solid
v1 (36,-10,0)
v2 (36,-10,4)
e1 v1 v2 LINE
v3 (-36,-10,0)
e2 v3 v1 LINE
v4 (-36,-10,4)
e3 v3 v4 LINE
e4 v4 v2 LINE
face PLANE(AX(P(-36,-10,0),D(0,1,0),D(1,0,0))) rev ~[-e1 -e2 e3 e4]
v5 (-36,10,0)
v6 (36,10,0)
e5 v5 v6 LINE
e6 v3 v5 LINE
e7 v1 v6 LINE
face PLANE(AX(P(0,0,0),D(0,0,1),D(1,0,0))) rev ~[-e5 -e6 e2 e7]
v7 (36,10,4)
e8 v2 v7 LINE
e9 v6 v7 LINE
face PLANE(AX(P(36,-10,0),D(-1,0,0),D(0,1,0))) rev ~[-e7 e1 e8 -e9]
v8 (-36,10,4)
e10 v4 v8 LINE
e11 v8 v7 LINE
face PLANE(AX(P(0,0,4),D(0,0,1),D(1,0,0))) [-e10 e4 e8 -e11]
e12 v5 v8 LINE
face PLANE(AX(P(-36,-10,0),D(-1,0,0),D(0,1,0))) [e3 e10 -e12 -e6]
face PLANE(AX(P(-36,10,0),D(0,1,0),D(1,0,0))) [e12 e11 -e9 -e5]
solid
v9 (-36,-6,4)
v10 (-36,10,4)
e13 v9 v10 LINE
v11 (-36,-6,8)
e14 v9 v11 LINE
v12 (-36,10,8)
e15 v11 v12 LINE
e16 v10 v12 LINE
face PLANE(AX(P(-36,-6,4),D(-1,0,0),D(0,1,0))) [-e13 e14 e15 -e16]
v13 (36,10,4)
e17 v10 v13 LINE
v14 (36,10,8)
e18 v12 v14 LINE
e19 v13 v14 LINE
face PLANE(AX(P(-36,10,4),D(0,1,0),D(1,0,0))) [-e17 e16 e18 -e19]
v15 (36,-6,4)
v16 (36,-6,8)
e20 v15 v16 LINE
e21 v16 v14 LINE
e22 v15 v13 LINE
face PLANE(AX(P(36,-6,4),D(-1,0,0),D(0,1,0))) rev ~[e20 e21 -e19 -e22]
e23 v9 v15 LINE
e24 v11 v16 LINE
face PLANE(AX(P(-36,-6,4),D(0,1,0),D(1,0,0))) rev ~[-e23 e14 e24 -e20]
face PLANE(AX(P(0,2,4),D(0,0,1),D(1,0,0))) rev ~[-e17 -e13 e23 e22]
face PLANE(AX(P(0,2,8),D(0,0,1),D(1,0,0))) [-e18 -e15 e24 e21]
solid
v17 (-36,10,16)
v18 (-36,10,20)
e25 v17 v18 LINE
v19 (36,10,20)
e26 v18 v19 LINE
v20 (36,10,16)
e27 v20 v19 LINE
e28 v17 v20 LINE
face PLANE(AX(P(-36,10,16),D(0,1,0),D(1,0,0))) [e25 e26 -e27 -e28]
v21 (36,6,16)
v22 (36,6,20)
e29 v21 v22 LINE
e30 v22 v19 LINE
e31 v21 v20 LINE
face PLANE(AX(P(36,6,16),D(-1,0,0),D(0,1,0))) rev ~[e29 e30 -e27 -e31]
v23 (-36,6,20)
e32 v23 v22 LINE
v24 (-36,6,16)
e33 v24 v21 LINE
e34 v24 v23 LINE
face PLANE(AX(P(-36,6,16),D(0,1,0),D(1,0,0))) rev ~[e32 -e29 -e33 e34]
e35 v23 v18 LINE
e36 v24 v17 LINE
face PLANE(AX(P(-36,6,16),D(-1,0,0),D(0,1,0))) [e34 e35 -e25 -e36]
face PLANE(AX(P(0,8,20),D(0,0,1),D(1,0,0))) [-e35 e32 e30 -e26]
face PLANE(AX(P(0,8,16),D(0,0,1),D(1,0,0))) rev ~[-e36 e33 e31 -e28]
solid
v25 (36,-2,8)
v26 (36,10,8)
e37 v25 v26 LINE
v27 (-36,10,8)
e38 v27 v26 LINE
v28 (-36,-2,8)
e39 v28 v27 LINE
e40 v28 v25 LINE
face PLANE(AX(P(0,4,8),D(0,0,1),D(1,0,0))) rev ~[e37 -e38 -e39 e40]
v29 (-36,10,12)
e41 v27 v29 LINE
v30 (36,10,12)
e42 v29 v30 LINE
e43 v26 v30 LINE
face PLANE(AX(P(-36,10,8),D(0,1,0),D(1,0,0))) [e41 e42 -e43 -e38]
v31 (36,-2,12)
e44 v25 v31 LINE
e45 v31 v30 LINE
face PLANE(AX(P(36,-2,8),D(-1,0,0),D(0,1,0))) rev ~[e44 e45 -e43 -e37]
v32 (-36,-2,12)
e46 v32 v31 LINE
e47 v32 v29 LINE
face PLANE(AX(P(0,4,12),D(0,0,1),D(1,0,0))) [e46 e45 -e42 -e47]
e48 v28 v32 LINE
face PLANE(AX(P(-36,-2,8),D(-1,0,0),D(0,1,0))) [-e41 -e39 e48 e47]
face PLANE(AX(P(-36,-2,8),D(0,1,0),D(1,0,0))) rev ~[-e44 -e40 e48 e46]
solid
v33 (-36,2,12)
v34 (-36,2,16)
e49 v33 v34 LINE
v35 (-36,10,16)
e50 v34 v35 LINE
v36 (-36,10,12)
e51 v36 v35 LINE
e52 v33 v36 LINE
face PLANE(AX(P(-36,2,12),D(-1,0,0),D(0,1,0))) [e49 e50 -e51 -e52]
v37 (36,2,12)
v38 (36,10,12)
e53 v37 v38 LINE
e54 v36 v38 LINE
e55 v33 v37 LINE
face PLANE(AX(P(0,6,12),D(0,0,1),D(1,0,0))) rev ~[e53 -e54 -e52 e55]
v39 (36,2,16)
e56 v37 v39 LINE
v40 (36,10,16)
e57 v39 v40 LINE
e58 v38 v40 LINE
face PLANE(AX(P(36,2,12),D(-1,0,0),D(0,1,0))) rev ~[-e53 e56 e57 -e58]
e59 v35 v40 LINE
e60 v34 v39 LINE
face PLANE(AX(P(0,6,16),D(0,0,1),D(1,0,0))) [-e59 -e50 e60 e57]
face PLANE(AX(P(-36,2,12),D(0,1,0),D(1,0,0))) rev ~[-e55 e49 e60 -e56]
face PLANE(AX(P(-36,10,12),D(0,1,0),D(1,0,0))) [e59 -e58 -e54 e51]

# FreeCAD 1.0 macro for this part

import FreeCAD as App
import Part
import Sketcher

V = App.Vector
Q = App.Units.Quantity


def add_polygon(sketch, points):
    """Adds a closed chain of lines whose ends are joined by coincident constraints."""
    first, n = sketch.GeometryCount, len(points)
    for a, b in zip(points, points[1:] + points[:1]):
        sketch.addGeometry(Part.LineSegment(App.Vector(*a, 0), App.Vector(*b, 0)), False)
    for i in range(n):
        sketch.addConstraint(Sketcher.Constraint("Coincident", first + i, 2, first + (i + 1) % n, 1))

doc = App.newDocument("Part")
body = doc.addObject("PartDesign::Body", "Body")

# Sketch on XY plane
sketch1 = body.newObject("Sketcher::SketchObject", "Sketch")
sketch1.AttachmentSupport = (doc.getObject("XY_Plane"), [""])
sketch1.MapMode = "FlatFace"
add_polygon(sketch1, [(-36, 10), (-36, -10), (36, -10), (36, 10)])  # lines 0-3
sketch1.addConstraint([
    Sketcher.Constraint("Vertical", 0),
    Sketcher.Constraint("Horizontal", 1),
    Sketcher.Constraint("Vertical", 2),
    Sketcher.Constraint("Horizontal", 3),
    Sketcher.Constraint("Symmetric", 0, 2, 2, 2, -1, 1),
    Sketcher.Constraint("DistanceX", 1, 1, 1, 2, Q("72 mm")),
    Sketcher.Constraint("DistanceY", 0, 2, 0, 1, Q("20 mm")),
])
pad1 = body.newObject("PartDesign::Pad", "Pad")
pad1.Profile = sketch1
pad1.Length = 4
body2 = doc.addObject("PartDesign::Body", "Body001")

# Sketch on XY plane
sketch2 = body2.newObject("Sketcher::SketchObject", "Sketch001")
sketch2.AttachmentSupport = (doc.getObject("XY_Plane001"), [""])
sketch2.MapMode = "FlatFace"
sketch2.AttachmentOffset = App.Placement(V(0, 0, 4), App.Rotation())
add_polygon(sketch2, [(-36, 10), (-36, -6), (36, -6), (36, 10)])  # lines 0-3
sketch2.addConstraint([
    Sketcher.Constraint("Vertical", 0),
    Sketcher.Constraint("Horizontal", 1),
    Sketcher.Constraint("Vertical", 2),
    Sketcher.Constraint("Horizontal", 3),
    Sketcher.Constraint("DistanceX", 1, 1, 1, 2, Q("72 mm")),
    Sketcher.Constraint("DistanceY", 0, 2, 0, 1, Q("16 mm")),
    Sketcher.Constraint("DistanceX", 0, 2, -1, 1, Q("36 mm")),
    Sketcher.Constraint("DistanceY", 0, 2, -1, 1, Q("6 mm")),
])
pad2 = body2.newObject("PartDesign::Pad", "Pad001")
pad2.Profile = sketch2
pad2.Length = 4
body3 = doc.addObject("PartDesign::Body", "Body002")

# Sketch on XY plane
sketch3 = body3.newObject("Sketcher::SketchObject", "Sketch002")
sketch3.AttachmentSupport = (doc.getObject("XY_Plane002"), [""])
sketch3.MapMode = "FlatFace"
sketch3.AttachmentOffset = App.Placement(V(0, 0, 8), App.Rotation())
add_polygon(sketch3, [(-36, 10), (-36, -2), (36, -2), (36, 10)])  # lines 0-3
sketch3.addConstraint([
    Sketcher.Constraint("Vertical", 0),
    Sketcher.Constraint("Horizontal", 1),
    Sketcher.Constraint("Vertical", 2),
    Sketcher.Constraint("Horizontal", 3),
    Sketcher.Constraint("DistanceX", 1, 1, 1, 2, Q("72 mm")),
    Sketcher.Constraint("DistanceY", 0, 2, 0, 1, Q("12 mm")),
    Sketcher.Constraint("DistanceX", 0, 2, -1, 1, Q("36 mm")),
    Sketcher.Constraint("DistanceY", 0, 2, -1, 1, Q("2 mm")),
])
pad3 = body3.newObject("PartDesign::Pad", "Pad002")
pad3.Profile = sketch3
pad3.Length = 4
body4 = doc.addObject("PartDesign::Body", "Body003")

# Sketch on XY plane
sketch4 = body4.newObject("Sketcher::SketchObject", "Sketch003")
sketch4.AttachmentSupport = (doc.getObject("XY_Plane003"), [""])
sketch4.MapMode = "FlatFace"
sketch4.AttachmentOffset = App.Placement(V(0, 0, 12), App.Rotation())
add_polygon(sketch4, [(-36, 10), (-36, 2), (36, 2), (36, 10)])  # lines 0-3
sketch4.addConstraint([
    Sketcher.Constraint("Vertical", 0),
    Sketcher.Constraint("Horizontal", 1),
    Sketcher.Constraint("Vertical", 2),
    Sketcher.Constraint("Horizontal", 3),
    Sketcher.Constraint("DistanceX", 1, 1, 1, 2, Q("72 mm")),
    Sketcher.Constraint("DistanceY", 0, 2, 0, 1, Q("8 mm")),
    Sketcher.Constraint("DistanceX", 0, 2, -1, 1, Q("36 mm")),
    Sketcher.Constraint("DistanceY", -1, 1, 0, 2, Q("2 mm")),
])
pad4 = body4.newObject("PartDesign::Pad", "Pad003")
pad4.Profile = sketch4
pad4.Length = 4
body5 = doc.addObject("PartDesign::Body", "Body004")

# Sketch on XY plane
sketch5 = body5.newObject("Sketcher::SketchObject", "Sketch004")
sketch5.AttachmentSupport = (doc.getObject("XY_Plane004"), [""])
sketch5.MapMode = "FlatFace"
sketch5.AttachmentOffset = App.Placement(V(0, 0, 16), App.Rotation())
add_polygon(sketch5, [(-36, 10), (-36, 6), (36, 6), (36, 10)])  # lines 0-3
sketch5.addConstraint([
    Sketcher.Constraint("Vertical", 0),
    Sketcher.Constraint("Horizontal", 1),
    Sketcher.Constraint("Vertical", 2),
    Sketcher.Constraint("Horizontal", 3),
    Sketcher.Constraint("DistanceX", 1, 1, 1, 2, Q("72 mm")),
    Sketcher.Constraint("DistanceY", 0, 2, 0, 1, Q("4 mm")),
    Sketcher.Constraint("DistanceX", 0, 2, -1, 1, Q("36 mm")),
    Sketcher.Constraint("DistanceY", -1, 1, 0, 2, Q("6 mm")),
])
pad5 = body5.newObject("PartDesign::Pad", "Pad004")
pad5.Profile = sketch5
pad5.Length = 4

doc.recompute()
